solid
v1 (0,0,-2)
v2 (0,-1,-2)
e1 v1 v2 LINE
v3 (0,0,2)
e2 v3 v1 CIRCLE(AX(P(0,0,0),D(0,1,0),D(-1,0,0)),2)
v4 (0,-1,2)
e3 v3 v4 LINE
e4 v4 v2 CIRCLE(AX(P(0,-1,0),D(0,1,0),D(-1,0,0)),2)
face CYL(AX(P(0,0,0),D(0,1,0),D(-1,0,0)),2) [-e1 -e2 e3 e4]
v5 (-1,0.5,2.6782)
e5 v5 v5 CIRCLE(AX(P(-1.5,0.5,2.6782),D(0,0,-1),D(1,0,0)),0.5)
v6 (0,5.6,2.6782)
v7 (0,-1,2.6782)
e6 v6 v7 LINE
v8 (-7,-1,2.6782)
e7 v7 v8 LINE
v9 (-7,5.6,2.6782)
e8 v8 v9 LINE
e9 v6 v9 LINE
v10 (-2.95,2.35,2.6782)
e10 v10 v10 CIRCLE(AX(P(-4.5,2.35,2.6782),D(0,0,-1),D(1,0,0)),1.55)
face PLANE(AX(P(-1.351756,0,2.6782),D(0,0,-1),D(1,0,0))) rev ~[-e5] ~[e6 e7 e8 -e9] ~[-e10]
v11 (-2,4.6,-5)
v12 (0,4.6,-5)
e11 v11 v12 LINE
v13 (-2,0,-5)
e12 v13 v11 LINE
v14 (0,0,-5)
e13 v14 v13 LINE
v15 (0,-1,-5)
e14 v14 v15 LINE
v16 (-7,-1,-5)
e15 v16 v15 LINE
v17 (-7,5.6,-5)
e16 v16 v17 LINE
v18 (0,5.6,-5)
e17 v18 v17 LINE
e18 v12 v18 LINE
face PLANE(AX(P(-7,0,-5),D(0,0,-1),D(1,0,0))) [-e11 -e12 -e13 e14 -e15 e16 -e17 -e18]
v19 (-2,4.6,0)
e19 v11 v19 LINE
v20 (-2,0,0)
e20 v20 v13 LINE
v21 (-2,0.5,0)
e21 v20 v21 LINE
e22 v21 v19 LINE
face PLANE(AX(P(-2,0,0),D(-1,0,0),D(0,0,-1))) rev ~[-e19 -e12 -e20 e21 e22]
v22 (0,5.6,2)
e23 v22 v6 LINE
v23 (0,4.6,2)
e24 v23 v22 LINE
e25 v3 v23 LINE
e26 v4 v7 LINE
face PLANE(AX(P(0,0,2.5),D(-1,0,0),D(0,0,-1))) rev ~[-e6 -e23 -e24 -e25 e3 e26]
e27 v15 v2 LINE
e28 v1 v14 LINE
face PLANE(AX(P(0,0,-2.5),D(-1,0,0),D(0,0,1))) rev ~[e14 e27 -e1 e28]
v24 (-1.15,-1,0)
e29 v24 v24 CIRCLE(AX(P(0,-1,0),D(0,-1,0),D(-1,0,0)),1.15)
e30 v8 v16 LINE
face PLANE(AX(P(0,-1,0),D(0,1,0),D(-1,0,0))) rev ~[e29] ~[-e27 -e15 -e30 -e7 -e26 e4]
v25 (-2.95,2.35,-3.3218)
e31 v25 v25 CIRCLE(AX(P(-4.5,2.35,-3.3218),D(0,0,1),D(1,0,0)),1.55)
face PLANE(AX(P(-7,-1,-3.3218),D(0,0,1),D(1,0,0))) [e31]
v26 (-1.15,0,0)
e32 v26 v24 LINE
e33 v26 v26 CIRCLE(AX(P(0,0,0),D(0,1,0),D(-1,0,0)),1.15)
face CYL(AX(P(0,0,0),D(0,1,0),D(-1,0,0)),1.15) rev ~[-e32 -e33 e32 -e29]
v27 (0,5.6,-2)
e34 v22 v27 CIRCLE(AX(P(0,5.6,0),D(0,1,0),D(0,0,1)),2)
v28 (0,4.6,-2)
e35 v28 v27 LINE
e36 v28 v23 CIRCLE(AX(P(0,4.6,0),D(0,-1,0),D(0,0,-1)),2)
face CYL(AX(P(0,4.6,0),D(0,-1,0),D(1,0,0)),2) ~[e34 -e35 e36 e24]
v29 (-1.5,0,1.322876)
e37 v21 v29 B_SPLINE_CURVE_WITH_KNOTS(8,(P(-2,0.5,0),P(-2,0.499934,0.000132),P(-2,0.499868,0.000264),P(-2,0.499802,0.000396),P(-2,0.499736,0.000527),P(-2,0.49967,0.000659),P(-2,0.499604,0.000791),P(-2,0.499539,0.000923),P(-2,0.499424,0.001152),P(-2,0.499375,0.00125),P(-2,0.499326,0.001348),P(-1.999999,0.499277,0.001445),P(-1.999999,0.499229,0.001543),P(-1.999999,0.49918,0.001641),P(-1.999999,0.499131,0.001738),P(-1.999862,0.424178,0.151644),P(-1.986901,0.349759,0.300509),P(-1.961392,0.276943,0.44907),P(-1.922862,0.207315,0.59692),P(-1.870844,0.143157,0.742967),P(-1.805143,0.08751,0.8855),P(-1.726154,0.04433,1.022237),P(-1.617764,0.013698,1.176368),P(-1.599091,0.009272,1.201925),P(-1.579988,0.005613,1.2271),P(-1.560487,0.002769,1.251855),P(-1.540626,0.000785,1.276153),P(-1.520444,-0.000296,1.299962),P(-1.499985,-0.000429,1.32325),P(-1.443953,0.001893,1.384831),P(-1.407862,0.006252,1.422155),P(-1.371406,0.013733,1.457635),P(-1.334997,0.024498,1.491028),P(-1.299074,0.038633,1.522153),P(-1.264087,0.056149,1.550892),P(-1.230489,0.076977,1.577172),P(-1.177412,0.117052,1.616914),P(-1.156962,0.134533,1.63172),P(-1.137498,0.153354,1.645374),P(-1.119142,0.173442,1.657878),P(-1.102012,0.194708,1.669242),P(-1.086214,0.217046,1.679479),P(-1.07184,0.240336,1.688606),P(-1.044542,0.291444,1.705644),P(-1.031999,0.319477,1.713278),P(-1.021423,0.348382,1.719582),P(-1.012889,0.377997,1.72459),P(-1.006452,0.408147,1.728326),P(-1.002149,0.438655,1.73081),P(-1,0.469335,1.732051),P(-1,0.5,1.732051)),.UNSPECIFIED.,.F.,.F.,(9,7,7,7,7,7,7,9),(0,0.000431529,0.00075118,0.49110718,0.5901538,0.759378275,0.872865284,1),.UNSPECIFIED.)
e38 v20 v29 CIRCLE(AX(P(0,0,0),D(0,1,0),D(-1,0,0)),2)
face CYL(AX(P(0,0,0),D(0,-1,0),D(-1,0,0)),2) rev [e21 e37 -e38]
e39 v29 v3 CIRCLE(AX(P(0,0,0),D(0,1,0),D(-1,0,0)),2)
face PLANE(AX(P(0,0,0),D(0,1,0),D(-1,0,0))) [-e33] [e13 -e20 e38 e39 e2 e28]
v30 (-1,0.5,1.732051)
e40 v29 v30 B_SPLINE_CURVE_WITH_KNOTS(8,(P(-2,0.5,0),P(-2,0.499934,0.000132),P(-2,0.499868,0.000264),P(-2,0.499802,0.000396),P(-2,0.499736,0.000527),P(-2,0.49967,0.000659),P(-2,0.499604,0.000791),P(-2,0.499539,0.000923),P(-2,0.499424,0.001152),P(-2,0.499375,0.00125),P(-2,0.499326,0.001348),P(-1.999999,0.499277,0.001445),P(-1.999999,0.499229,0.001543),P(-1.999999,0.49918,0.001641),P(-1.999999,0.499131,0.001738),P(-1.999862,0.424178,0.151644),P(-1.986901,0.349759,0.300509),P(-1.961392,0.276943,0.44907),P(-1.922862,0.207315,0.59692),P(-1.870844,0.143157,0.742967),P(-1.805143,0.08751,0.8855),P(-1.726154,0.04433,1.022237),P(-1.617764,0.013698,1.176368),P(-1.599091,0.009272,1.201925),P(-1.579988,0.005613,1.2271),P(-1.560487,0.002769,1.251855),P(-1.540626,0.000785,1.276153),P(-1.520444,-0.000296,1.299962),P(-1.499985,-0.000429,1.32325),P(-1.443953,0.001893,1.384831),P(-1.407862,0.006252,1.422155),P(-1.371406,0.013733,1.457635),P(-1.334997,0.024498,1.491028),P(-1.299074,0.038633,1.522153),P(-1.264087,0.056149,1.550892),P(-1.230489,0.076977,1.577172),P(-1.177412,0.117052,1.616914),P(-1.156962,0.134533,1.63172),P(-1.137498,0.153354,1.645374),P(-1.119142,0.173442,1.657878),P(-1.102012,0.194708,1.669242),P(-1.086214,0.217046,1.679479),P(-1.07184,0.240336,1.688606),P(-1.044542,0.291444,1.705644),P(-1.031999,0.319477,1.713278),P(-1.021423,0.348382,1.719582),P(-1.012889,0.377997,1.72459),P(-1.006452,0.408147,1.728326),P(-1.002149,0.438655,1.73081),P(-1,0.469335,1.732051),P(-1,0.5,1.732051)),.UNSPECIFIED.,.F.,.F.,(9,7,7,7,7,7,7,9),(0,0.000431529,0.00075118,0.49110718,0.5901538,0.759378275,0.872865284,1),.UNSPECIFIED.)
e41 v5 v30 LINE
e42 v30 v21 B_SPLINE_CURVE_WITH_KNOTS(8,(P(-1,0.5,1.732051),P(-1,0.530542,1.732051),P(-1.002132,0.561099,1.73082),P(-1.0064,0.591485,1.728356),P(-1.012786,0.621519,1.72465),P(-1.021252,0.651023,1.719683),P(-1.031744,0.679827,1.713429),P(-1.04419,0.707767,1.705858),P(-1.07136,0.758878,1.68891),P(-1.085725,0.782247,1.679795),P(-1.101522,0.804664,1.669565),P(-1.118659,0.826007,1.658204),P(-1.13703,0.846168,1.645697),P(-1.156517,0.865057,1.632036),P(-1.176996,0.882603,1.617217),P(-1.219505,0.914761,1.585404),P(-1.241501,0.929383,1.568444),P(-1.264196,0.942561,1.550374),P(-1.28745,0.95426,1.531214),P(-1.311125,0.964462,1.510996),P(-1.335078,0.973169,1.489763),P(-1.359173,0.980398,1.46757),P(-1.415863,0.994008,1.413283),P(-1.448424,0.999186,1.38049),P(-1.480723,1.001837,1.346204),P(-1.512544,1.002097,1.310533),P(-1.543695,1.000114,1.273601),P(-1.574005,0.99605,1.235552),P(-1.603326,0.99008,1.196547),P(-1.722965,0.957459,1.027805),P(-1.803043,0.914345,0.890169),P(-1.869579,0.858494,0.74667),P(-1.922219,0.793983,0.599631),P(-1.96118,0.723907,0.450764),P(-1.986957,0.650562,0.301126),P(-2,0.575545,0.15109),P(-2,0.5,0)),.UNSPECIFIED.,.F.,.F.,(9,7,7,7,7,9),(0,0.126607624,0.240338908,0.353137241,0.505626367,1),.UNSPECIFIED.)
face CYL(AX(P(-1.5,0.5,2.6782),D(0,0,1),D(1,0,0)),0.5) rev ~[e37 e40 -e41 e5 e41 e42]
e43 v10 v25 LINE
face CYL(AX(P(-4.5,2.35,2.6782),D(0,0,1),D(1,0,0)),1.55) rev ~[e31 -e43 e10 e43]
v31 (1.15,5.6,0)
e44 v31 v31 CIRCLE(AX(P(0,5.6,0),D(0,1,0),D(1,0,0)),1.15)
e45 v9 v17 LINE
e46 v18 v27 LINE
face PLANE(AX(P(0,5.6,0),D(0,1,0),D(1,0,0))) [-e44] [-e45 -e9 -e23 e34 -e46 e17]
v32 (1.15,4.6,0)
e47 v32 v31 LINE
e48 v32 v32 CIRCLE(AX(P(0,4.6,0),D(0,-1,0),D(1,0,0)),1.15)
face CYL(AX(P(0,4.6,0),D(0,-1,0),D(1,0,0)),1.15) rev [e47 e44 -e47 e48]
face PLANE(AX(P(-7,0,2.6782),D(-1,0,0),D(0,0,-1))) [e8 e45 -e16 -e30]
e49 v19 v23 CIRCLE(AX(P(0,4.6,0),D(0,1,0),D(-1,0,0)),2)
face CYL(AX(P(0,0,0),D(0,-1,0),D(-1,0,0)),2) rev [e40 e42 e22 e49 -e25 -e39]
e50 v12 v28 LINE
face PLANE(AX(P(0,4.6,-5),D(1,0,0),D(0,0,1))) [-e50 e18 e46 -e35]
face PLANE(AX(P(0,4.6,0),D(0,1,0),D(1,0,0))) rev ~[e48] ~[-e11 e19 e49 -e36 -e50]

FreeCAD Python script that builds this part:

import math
import FreeCAD as App
import Part
import Sketcher
Q = App.Units.Quantity

doc = App.newDocument("Part")
body = doc.addObject("PartDesign::Body", "Body")

# Sketch on XZ plane
sketch1 = body.newObject("Sketcher::SketchObject", "Sketch")
sketch1.AttachmentSupport = (doc.getObject("XZ_Plane"), [""])
sketch1.MapMode = "FlatFace"
sketch1.addGeometry(Part.LineSegment(App.Vector(-2, 0, 0), App.Vector(-2, -5, 0)), False)
sketch1.addGeometry(Part.LineSegment(App.Vector(-2, -5, 0), App.Vector(-7, -5, 0)), False)
sketch1.addGeometry(Part.LineSegment(App.Vector(-7, -5, 0), App.Vector(-7, 2.7, 0)), False)
sketch1.addGeometry(Part.LineSegment(App.Vector(-7, 2.7, 0), App.Vector(0, 2.7, 0)), False)
sketch1.addGeometry(Part.LineSegment(App.Vector(0, 2.7, 0), App.Vector(0, 2, 0)), False)
sketch1.addGeometry(Part.ArcOfCircle(Part.Circle(App.Vector(0, 0, 0), App.Vector(0, 0, 1), 2), math.radians(90), math.radians(180)), False)
sketch1.addConstraint(Sketcher.Constraint("Coincident", 0, 2, 1, 1))
sketch1.addConstraint(Sketcher.Constraint("Coincident", 1, 2, 2, 1))
sketch1.addConstraint(Sketcher.Constraint("Coincident", 2, 2, 3, 1))
sketch1.addConstraint(Sketcher.Constraint("Coincident", 3, 2, 4, 1))
sketch1.addConstraint(Sketcher.Constraint("Coincident", 4, 2, 5, 1))
sketch1.addConstraint(Sketcher.Constraint("Tangent", 5, 2, 0, 1))
sketch1.addConstraint(Sketcher.Constraint("Vertical", 0))
sketch1.addConstraint(Sketcher.Constraint("Horizontal", 1))
sketch1.addConstraint(Sketcher.Constraint("Vertical", 2))
sketch1.addConstraint(Sketcher.Constraint("Horizontal", 3))
sketch1.addConstraint(Sketcher.Constraint("Vertical", 4))
sketch1.addConstraint(Sketcher.Constraint("Coincident", 5, 3, -1, 1))
sketch1.addConstraint(Sketcher.Constraint("PointOnObject", 3, 2, -2))
sketch1.addConstraint(Sketcher.Constraint("Equal", 1, 0))
sketch1.addConstraint(Sketcher.Constraint("Radius", 5, Q("2 mm")))
sketch1.addConstraint(Sketcher.Constraint("DistanceX", 1, 2, 1, 1, Q("5 mm")))
sketch1.addConstraint(Sketcher.Constraint("DistanceY", 2, 1, 2, 2, Q("7.6782 mm")))
pad1 = body.newObject("PartDesign::Pad", "Pad")
pad1.Profile = sketch1
pad1.Length = 4.6
pad1.Reversed = True

# Sketch on XZ plane
sketch2 = body.newObject("Sketcher::SketchObject", "Sketch001")
sketch2.AttachmentSupport = (doc.getObject("XZ_Plane"), [""])
sketch2.MapMode = "FlatFace"
sketch2.addGeometry(Part.ArcOfCircle(Part.Circle(App.Vector(0, 0, 0), App.Vector(0, 0, 1), 2), math.radians(-90), math.radians(90)), False)
sketch2.addGeometry(Part.LineSegment(App.Vector(0, -2, 0), App.Vector(0, -5, 0)), False)
sketch2.addGeometry(Part.LineSegment(App.Vector(0, -5, 0), App.Vector(-7, -5, 0)), False)
sketch2.addGeometry(Part.LineSegment(App.Vector(-7, -5, 0), App.Vector(-7, 2.7, 0)), False)
sketch2.addGeometry(Part.LineSegment(App.Vector(-7, 2.7, 0), App.Vector(0, 2.7, 0)), False)
sketch2.addGeometry(Part.LineSegment(App.Vector(0, 2.7, 0), App.Vector(0, 2, 0)), False)
sketch2.addGeometry(Part.Circle(App.Vector(0, 0, 0), App.Vector(0, 0, 1), 1.1), False)
sketch2.addConstraint(Sketcher.Constraint("Coincident", 0, 1, 1, 1))
sketch2.addConstraint(Sketcher.Constraint("Coincident", 1, 2, 2, 1))
sketch2.addConstraint(Sketcher.Constraint("Coincident", 2, 2, 3, 1))
sketch2.addConstraint(Sketcher.Constraint("Coincident", 3, 2, 4, 1))
sketch2.addConstraint(Sketcher.Constraint("Coincident", 4, 2, 5, 1))
sketch2.addConstraint(Sketcher.Constraint("Coincident", 5, 2, 0, 2))
sketch2.addConstraint(Sketcher.Constraint("Vertical", 1))
sketch2.addConstraint(Sketcher.Constraint("Horizontal", 2))
sketch2.addConstraint(Sketcher.Constraint("Vertical", 3))
sketch2.addConstraint(Sketcher.Constraint("Horizontal", 4))
sketch2.addConstraint(Sketcher.Constraint("Vertical", 5))
sketch2.addConstraint(Sketcher.Constraint("Coincident", 0, 3, -1, 1))
sketch2.addConstraint(Sketcher.Constraint("Coincident", 6, 3, -1, 1))
sketch2.addConstraint(Sketcher.Constraint("PointOnObject", 0, 1, -2))
sketch2.addConstraint(Sketcher.Constraint("PointOnObject", 4, 2, -2))
sketch2.addConstraint(Sketcher.Constraint("Radius", 0, Q("2 mm")))
sketch2.addConstraint(Sketcher.Constraint("Diameter", 6, Q("2.3 mm")))
sketch2.addConstraint(Sketcher.Constraint("DistanceX", 2, 2, 2, 1, Q("7 mm")))
sketch2.addConstraint(Sketcher.Constraint("DistanceY", 1, 2, -1, 1, Q("5 mm")))
sketch2.addConstraint(Sketcher.Constraint("DistanceY", 3, 1, 3, 2, Q("7.6782 mm")))
pad2 = body.newObject("PartDesign::Pad", "Pad001")
pad2.Profile = sketch2
pad2.Length = 1

# Sketch on XZ plane
sketch3 = body.newObject("Sketcher::SketchObject", "Sketch002")
sketch3.AttachmentSupport = (doc.getObject("XZ_Plane"), [""])
sketch3.MapMode = "FlatFace"
sketch3.AttachmentOffset = App.Placement(App.Vector(0, 0, -4.6), App.Rotation())
sketch3.addGeometry(Part.LineSegment(App.Vector(0, -2, 0), App.Vector(0, -5, 0)), False)
sketch3.addGeometry(Part.LineSegment(App.Vector(0, -5, 0), App.Vector(-7, -5, 0)), False)
sketch3.addGeometry(Part.LineSegment(App.Vector(-7, -5, 0), App.Vector(-7, 2.7, 0)), False)
sketch3.addGeometry(Part.LineSegment(App.Vector(-7, 2.7, 0), App.Vector(0, 2.7, 0)), False)
sketch3.addGeometry(Part.LineSegment(App.Vector(0, 2.7, 0), App.Vector(0, 2, 0)), False)
sketch3.addGeometry(Part.ArcOfCircle(Part.Circle(App.Vector(0, 0, 0), App.Vector(0, 0, 1), 2), math.radians(-90), math.radians(90)), False)
sketch3.addGeometry(Part.Circle(App.Vector(0, 0, 0), App.Vector(0, 0, 1), 1.1), False)
sketch3.addConstraint(Sketcher.Constraint("Coincident", 0, 2, 1, 1))
sketch3.addConstraint(Sketcher.Constraint("Coincident", 1, 2, 2, 1))
sketch3.addConstraint(Sketcher.Constraint("Coincident", 2, 2, 3, 1))
sketch3.addConstraint(Sketcher.Constraint("Coincident", 3, 2, 4, 1))
sketch3.addConstraint(Sketcher.Constraint("Coincident", 4, 2, 5, 2))
sketch3.addConstraint(Sketcher.Constraint("Coincident", 5, 1, 0, 1))
sketch3.addConstraint(Sketcher.Constraint("Vertical", 0))
sketch3.addConstraint(Sketcher.Constraint("Horizontal", 1))
sketch3.addConstraint(Sketcher.Constraint("Vertical", 2))
sketch3.addConstraint(Sketcher.Constraint("Horizontal", 3))
sketch3.addConstraint(Sketcher.Constraint("Vertical", 4))
sketch3.addConstraint(Sketcher.Constraint("Coincident", 5, 3, -1, 1))
sketch3.addConstraint(Sketcher.Constraint("Coincident", 6, 3, -1, 1))
sketch3.addConstraint(Sketcher.Constraint("PointOnObject", 0, 2, -2))
sketch3.addConstraint(Sketcher.Constraint("PointOnObject", 3, 2, -2))
sketch3.addConstraint(Sketcher.Constraint("Radius", 5, Q("2 mm")))
sketch3.addConstraint(Sketcher.Constraint("Diameter", 6, Q("2.3 mm")))
sketch3.addConstraint(Sketcher.Constraint("DistanceX", 1, 2, 1, 1, Q("7 mm")))
sketch3.addConstraint(Sketcher.Constraint("DistanceY", 0, 2, 0, 1, Q("3 mm")))
sketch3.addConstraint(Sketcher.Constraint("DistanceY", 2, 1, 2, 2, Q("7.6782 mm")))
pad3 = body.newObject("PartDesign::Pad", "Pad002")
pad3.Profile = sketch3
pad3.Length = 1
pad3.Reversed = True

# Sketch on XY plane
sketch4 = body.newObject("Sketcher::SketchObject", "Sketch003")
sketch4.AttachmentSupport = (doc.getObject("XY_Plane"), [""])
sketch4.MapMode = "FlatFace"
sketch4.AttachmentOffset = App.Placement(App.Vector(0, 0, 2.6782), App.Rotation())
sketch4.addGeometry(Part.Circle(App.Vector(-4.5, 2.4, 0), App.Vector(0, 0, 1), 1.6), False)
sketch4.addGeometry(Part.Circle(App.Vector(-1.5, 0.5, 0), App.Vector(0, 0, 1), 0.5), False)
sketch4.addConstraint(Sketcher.Constraint("Diameter", 1, Q("1 mm")))
sketch4.addConstraint(Sketcher.Constraint("Diameter", 0, Q("3.1 mm")))
sketch4.addConstraint(Sketcher.Constraint("DistanceX", 1, 3, -1, 1, Q("1.5 mm")))
sketch4.addConstraint(Sketcher.Constraint("DistanceY", -1, 1, 1, 3, Q("0.5 mm")))
sketch4.addConstraint(Sketcher.Constraint("DistanceX", 0, 3, 1, 3, Q("3 mm")))
sketch4.addConstraint(Sketcher.Constraint("DistanceY", -1, 1, 0, 3, Q("2.35 mm")))
pocket1 = body.newObject("PartDesign::Pocket", "Pocket")
pocket1.Profile = sketch4
pocket1.Length = 6

doc.recompute()
